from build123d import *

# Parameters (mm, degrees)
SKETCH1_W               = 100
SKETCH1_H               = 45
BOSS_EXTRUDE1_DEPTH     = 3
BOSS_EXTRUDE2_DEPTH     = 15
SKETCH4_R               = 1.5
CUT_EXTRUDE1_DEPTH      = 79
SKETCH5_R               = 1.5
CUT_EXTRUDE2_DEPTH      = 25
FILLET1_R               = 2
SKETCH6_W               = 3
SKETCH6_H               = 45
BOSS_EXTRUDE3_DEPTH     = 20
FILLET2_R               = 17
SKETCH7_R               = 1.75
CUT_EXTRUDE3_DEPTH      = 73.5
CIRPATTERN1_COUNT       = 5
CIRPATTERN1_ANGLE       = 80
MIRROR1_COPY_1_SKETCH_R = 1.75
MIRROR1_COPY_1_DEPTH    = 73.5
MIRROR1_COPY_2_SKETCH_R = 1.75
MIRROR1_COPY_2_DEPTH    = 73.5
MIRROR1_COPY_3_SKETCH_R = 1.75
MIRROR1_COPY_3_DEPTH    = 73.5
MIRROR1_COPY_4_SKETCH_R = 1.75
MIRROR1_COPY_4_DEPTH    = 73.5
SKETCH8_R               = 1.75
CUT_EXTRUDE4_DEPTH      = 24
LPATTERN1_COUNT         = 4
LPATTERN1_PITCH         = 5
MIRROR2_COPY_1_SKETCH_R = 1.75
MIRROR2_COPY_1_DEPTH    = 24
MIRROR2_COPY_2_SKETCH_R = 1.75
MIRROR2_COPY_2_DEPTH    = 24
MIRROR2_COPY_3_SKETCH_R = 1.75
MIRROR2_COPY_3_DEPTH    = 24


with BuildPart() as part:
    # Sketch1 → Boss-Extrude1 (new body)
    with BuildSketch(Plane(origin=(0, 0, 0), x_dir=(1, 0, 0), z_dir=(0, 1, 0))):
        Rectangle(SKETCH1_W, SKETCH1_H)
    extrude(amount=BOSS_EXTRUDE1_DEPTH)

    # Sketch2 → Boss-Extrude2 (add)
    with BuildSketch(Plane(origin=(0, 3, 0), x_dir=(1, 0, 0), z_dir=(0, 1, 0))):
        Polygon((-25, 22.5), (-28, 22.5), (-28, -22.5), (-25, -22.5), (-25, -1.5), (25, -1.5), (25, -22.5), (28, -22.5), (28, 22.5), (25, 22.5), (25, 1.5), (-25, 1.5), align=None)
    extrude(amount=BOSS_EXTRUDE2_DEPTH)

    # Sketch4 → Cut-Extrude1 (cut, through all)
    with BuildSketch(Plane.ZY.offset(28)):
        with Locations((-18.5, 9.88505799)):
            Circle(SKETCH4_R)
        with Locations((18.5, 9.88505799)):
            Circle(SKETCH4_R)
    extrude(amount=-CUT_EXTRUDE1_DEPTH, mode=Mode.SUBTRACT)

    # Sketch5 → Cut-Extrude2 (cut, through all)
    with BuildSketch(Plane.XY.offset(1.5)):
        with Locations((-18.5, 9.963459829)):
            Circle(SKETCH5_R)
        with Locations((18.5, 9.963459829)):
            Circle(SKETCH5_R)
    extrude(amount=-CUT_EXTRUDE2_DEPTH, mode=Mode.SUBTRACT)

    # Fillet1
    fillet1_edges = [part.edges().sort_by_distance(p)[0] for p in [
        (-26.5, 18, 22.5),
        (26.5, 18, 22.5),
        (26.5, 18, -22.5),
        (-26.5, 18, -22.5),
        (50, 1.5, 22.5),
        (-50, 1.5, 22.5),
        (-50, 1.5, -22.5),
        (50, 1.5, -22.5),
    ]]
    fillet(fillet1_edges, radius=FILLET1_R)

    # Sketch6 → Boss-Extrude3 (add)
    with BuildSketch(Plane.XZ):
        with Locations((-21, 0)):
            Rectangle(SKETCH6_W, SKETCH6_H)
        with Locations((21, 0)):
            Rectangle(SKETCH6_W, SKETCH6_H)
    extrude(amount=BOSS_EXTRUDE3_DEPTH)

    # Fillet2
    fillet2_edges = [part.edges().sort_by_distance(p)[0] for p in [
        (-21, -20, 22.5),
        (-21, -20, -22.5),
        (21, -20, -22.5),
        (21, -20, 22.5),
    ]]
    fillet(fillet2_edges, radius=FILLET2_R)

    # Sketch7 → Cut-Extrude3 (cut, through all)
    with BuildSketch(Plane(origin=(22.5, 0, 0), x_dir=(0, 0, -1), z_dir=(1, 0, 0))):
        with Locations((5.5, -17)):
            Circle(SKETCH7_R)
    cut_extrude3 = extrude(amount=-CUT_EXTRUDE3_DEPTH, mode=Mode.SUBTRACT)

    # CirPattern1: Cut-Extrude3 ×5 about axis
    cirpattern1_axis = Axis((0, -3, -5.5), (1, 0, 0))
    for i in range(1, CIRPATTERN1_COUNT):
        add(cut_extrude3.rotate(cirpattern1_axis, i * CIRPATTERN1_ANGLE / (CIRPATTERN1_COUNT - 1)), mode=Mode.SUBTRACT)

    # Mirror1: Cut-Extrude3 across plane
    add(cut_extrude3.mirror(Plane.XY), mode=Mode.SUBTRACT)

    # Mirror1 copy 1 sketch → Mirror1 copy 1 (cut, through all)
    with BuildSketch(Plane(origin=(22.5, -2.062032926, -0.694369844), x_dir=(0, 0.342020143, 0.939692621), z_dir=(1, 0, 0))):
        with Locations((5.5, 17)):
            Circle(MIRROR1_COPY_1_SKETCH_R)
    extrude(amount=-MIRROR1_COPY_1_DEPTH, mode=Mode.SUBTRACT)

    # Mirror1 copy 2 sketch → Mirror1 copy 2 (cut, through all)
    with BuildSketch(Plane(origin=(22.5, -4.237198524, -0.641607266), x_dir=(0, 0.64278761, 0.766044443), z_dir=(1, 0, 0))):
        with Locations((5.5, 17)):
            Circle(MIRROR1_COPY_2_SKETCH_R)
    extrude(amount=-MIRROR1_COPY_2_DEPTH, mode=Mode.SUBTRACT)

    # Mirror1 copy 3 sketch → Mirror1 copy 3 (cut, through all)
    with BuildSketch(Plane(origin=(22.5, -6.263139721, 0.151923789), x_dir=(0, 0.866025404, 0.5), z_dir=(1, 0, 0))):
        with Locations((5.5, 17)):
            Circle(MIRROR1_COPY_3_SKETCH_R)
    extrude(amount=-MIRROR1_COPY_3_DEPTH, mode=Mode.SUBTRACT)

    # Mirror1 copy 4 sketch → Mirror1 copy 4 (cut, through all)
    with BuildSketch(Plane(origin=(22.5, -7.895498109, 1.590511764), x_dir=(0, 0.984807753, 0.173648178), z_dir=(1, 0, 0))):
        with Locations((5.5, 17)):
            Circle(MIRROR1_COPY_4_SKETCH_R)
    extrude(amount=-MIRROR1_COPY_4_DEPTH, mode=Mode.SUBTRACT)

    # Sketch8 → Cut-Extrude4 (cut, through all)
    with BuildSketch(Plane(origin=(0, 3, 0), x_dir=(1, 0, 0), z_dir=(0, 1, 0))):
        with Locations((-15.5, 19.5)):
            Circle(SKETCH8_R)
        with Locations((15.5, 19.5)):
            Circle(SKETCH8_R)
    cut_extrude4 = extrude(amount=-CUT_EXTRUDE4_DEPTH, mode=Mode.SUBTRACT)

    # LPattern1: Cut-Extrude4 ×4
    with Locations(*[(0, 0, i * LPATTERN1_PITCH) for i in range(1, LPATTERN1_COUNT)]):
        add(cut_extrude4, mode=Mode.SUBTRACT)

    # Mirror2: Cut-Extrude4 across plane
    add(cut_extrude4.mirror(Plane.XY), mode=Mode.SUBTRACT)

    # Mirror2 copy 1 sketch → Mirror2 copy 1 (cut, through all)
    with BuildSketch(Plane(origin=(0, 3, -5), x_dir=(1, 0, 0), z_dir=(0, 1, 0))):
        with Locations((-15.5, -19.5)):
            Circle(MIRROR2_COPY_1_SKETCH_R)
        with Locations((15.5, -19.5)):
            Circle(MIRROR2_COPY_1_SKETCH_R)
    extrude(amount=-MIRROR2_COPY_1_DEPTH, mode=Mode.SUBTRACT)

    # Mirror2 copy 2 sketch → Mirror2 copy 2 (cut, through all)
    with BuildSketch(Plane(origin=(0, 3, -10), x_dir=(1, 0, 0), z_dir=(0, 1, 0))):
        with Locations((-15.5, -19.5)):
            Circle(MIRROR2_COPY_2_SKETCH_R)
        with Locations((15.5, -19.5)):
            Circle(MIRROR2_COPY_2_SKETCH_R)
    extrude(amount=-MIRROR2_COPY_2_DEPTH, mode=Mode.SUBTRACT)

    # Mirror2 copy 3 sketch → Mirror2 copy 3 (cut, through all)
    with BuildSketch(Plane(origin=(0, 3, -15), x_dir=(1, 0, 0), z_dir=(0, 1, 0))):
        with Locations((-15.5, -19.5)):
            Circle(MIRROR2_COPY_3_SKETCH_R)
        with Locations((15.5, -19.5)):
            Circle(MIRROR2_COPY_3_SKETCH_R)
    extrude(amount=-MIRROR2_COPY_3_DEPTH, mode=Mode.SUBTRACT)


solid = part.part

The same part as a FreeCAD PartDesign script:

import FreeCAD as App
import Part
import Sketcher
Q = App.Units.Quantity


def edges_at(feature, points):
    """Names of the edges that pass closest to the given points."""
    edges = feature.Shape.Edges
    near = lambda p: min(range(len(edges)), key=lambda i: edges[i].distToShape(Part.Vertex(*p))[0])
    return sorted({f"Edge{near(p) + 1}" for p in points})

doc = App.newDocument("Part")
body = doc.addObject("PartDesign::Body", "Body")

# Sketch on XZ plane
sketch1 = body.newObject("Sketcher::SketchObject", "Sketch")
sketch1.AttachmentSupport = (doc.getObject("XZ_Plane"), [""])
sketch1.MapMode = "FlatFace"
sketch1.addGeometry(Part.LineSegment(App.Vector(-50, -22, 0), App.Vector(-50, 22, 0)), False)
sketch1.addGeometry(Part.LineSegment(App.Vector(-50, 22, 0), App.Vector(50, 22, 0)), False)
sketch1.addGeometry(Part.LineSegment(App.Vector(50, 22, 0), App.Vector(50, -22, 0)), False)
sketch1.addGeometry(Part.LineSegment(App.Vector(50, -22, 0), App.Vector(-50, -22, 0)), False)
sketch1.addConstraint(Sketcher.Constraint("Coincident", 0, 2, 1, 1))
sketch1.addConstraint(Sketcher.Constraint("Coincident", 1, 2, 2, 1))
sketch1.addConstraint(Sketcher.Constraint("Coincident", 2, 2, 3, 1))
sketch1.addConstraint(Sketcher.Constraint("Coincident", 3, 2, 0, 1))
sketch1.addConstraint(Sketcher.Constraint("Vertical", 0))
sketch1.addConstraint(Sketcher.Constraint("Horizontal", 1))
sketch1.addConstraint(Sketcher.Constraint("Vertical", 2))
sketch1.addConstraint(Sketcher.Constraint("Horizontal", 3))
sketch1.addConstraint(Sketcher.Constraint("Symmetric", 0, 2, 2, 2, -1, 1))
sketch1.addConstraint(Sketcher.Constraint("DistanceX", 1, 1, 1, 2, Q("100 mm")))
sketch1.addConstraint(Sketcher.Constraint("DistanceY", 0, 1, 0, 2, Q("45 mm")))
pad1 = body.newObject("PartDesign::Pad", "Pad")
pad1.Profile = sketch1
pad1.Length = 3
pad1.Reversed = True

# Sketch on XZ plane
sketch2 = body.newObject("Sketcher::SketchObject", "Sketch001")
sketch2.AttachmentSupport = (doc.getObject("XZ_Plane"), [""])
sketch2.MapMode = "FlatFace"
sketch2.AttachmentOffset = App.Placement(App.Vector(0, 0, -3), App.Rotation())
sketch2.addGeometry(Part.LineSegment(App.Vector(-25, -22.5, 0), App.Vector(-28, -22.5, 0)), False)
sketch2.addGeometry(Part.LineSegment(App.Vector(-28, -22.5, 0), App.Vector(-28, 22.5, 0)), False)
sketch2.addGeometry(Part.LineSegment(App.Vector(-28, 22.5, 0), App.Vector(-25, 22.5, 0)), False)
sketch2.addGeometry(Part.LineSegment(App.Vector(-25, 22.5, 0), App.Vector(-25, 1.5, 0)), False)
sketch2.addGeometry(Part.LineSegment(App.Vector(-25, 1.5, 0), App.Vector(25, 1.5, 0)), False)
sketch2.addGeometry(Part.LineSegment(App.Vector(25, 1.5, 0), App.Vector(25, 22.5, 0)), False)
sketch2.addGeometry(Part.LineSegment(App.Vector(25, 22.5, 0), App.Vector(28, 22.5, 0)), False)
sketch2.addGeometry(Part.LineSegment(App.Vector(28, 22.5, 0), App.Vector(28, -22.5, 0)), False)
sketch2.addGeometry(Part.LineSegment(App.Vector(28, -22.5, 0), App.Vector(25, -22.5, 0)), False)
sketch2.addGeometry(Part.LineSegment(App.Vector(25, -22.5, 0), App.Vector(25, -1.5, 0)), False)
sketch2.addGeometry(Part.LineSegment(App.Vector(25, -1.5, 0), App.Vector(-25, -1.5, 0)), False)
sketch2.addGeometry(Part.LineSegment(App.Vector(-25, -1.5, 0), App.Vector(-25, -22.5, 0)), False)
sketch2.addConstraint(Sketcher.Constraint("Coincident", 0, 2, 1, 1))
sketch2.addConstraint(Sketcher.Constraint("Coincident", 1, 2, 2, 1))
sketch2.addConstraint(Sketcher.Constraint("Coincident", 2, 2, 3, 1))
sketch2.addConstraint(Sketcher.Constraint("Coincident", 3, 2, 4, 1))
sketch2.addConstraint(Sketcher.Constraint("Coincident", 4, 2, 5, 1))
sketch2.addConstraint(Sketcher.Constraint("Coincident", 5, 2, 6, 1))
sketch2.addConstraint(Sketcher.Constraint("Coincident", 6, 2, 7, 1))
sketch2.addConstraint(Sketcher.Constraint("Coincident", 7, 2, 8, 1))
sketch2.addConstraint(Sketcher.Constraint("Coincident", 8, 2, 9, 1))
sketch2.addConstraint(Sketcher.Constraint("Coincident", 9, 2, 10, 1))
sketch2.addConstraint(Sketcher.Constraint("Coincident", 10, 2, 11, 1))
sketch2.addConstraint(Sketcher.Constraint("Coincident", 11, 2, 0, 1))
sketch2.addConstraint(Sketcher.Constraint("Horizontal", 0))
sketch2.addConstraint(Sketcher.Constraint("Vertical", 1))
sketch2.addConstraint(Sketcher.Constraint("Horizontal", 2))
sketch2.addConstraint(Sketcher.Constraint("Vertical", 3))
sketch2.addConstraint(Sketcher.Constraint("Horizontal", 4))
sketch2.addConstraint(Sketcher.Constraint("Vertical", 5))
sketch2.addConstraint(Sketcher.Constraint("Horizontal", 6))
sketch2.addConstraint(Sketcher.Constraint("Vertical", 7))
sketch2.addConstraint(Sketcher.Constraint("Horizontal", 8))
sketch2.addConstraint(Sketcher.Constraint("Vertical", 9))
sketch2.addConstraint(Sketcher.Constraint("Horizontal", 10))
sketch2.addConstraint(Sketcher.Constraint("Vertical", 11))
sketch2.addConstraint(Sketcher.Constraint("Symmetric", 0, 2, 6, 2, -1, 1))
sketch2.addConstraint(Sketcher.Constraint("Symmetric", 2, 2, 8, 2, -1, 1))
sketch2.addConstraint(Sketcher.Constraint("Symmetric", 4, 2, 10, 2, -1, 1))
sketch2.addConstraint(Sketcher.Constraint("Symmetric", 2, 2, 5, 2, -2))
sketch2.addConstraint(Sketcher.Constraint("DistanceX", 0, 2, 0, 1, Q("3 mm")))
sketch2.addConstraint(Sketcher.Constraint("DistanceX", 4, 1, 4, 2, Q("50 mm")))
sketch2.addConstraint(Sketcher.Constraint("DistanceY", 1, 1, 1, 2, Q("45 mm")))
sketch2.addConstraint(Sketcher.Constraint("DistanceY", 3, 2, 3, 1, Q("21 mm")))
pad2 = body.newObject("PartDesign::Pad", "Pad001")
pad2.Profile = sketch2
pad2.Length = 15
pad2.Reversed = True

# Sketch on YZ plane
sketch3 = body.newObject("Sketcher::SketchObject", "Sketch002")
sketch3.AttachmentSupport = (doc.getObject("YZ_Plane"), [""])
sketch3.MapMode = "FlatFace"
sketch3.AttachmentOffset = App.Placement(App.Vector(0, 0, -28), App.Rotation())
sketch3.addGeometry(Part.Circle(App.Vector(9.9, -18.5, 0), App.Vector(0, 0, 1), 1.5), False)
sketch3.addGeometry(Part.Circle(App.Vector(9.9, 18.5, 0), App.Vector(0, 0, 1), 1.5), False)
sketch3.addConstraint(Sketcher.Constraint("Equal", 0, 1))
sketch3.addConstraint(Sketcher.Constraint("Symmetric", 0, 3, 1, 3, -1))
sketch3.addConstraint(Sketcher.Constraint("Diameter", 0, Q("3 mm")))
sketch3.addConstraint(Sketcher.Constraint("DistanceY", 0, 3, 1, 3, Q("37 mm")))
sketch3.addConstraint(Sketcher.Constraint("DistanceX", -1, 1, 0, 3, Q("9.885058 mm")))
pocket1 = body.newObject("PartDesign::Pocket", "Pocket")
pocket1.Profile = sketch3
pocket1.Type = "ThroughAll"
pocket1.Reversed = True

# Sketch on XY plane
sketch4 = body.newObject("Sketcher::SketchObject", "Sketch003")
sketch4.AttachmentSupport = (doc.getObject("XY_Plane"), [""])
sketch4.MapMode = "FlatFace"
sketch4.AttachmentOffset = App.Placement(App.Vector(0, 0, 1.5), App.Rotation())
sketch4.addGeometry(Part.Circle(App.Vector(-18.5, 10, 0), App.Vector(0, 0, 1), 1.5), False)
sketch4.addGeometry(Part.Circle(App.Vector(18.5, 10, 0), App.Vector(0, 0, 1), 1.5), False)
sketch4.addConstraint(Sketcher.Constraint("Equal", 0, 1))
sketch4.addConstraint(Sketcher.Constraint("Symmetric", 0, 3, 1, 3, -2))
sketch4.addConstraint(Sketcher.Constraint("Diameter", 0, Q("3 mm")))
sketch4.addConstraint(Sketcher.Constraint("DistanceX", 0, 3, 1, 3, Q("37 mm")))
sketch4.addConstraint(Sketcher.Constraint("DistanceY", -1, 1, 0, 3, Q("9.96346 mm")))
pocket2 = body.newObject("PartDesign::Pocket", "Pocket001")
pocket2.Profile = sketch4
pocket2.Type = "ThroughAll"
doc.recompute()

fillet = body.newObject("PartDesign::Fillet", "Fillet")
fillet.Base = (pocket2, edges_at(pocket2, [
    (-26.5, 18, 22.5),
    (26.5, 18, 22.5),
    (26.5, 18, -22.5),
    (-26.5, 18, -22.5),
    (50, 1.5, 22.5),
    (-50, 1.5, 22.5),
    (-50, 1.5, -22.5),
    (50, 1.5, -22.5),
]))
fillet.Radius = 2

# Sketch on XZ plane
sketch5 = body.newObject("Sketcher::SketchObject", "Sketch004")
sketch5.AttachmentSupport = (doc.getObject("XZ_Plane"), [""])
sketch5.MapMode = "FlatFace"
sketch5.addGeometry(Part.LineSegment(App.Vector(-22.5, 22.5, 0), App.Vector(-22.5, -22.5, 0)), False)
sketch5.addGeometry(Part.LineSegment(App.Vector(-22.5, -22.5, 0), App.Vector(-19.5, -22.5, 0)), False)
sketch5.addGeometry(Part.LineSegment(App.Vector(-19.5, -22.5, 0), App.Vector(-19.5, 22.5, 0)), False)
sketch5.addGeometry(Part.LineSegment(App.Vector(-19.5, 22.5, 0), App.Vector(-22.5, 22.5, 0)), False)
sketch5.addGeometry(Part.LineSegment(App.Vector(19.5, 22.5, 0), App.Vector(19.5, -22.5, 0)), False)
sketch5.addGeometry(Part.LineSegment(App.Vector(19.5, -22.5, 0), App.Vector(22.5, -22.5, 0)), False)
sketch5.addGeometry(Part.LineSegment(App.Vector(22.5, -22.5, 0), App.Vector(22.5, 22.5, 0)), False)
sketch5.addGeometry(Part.LineSegment(App.Vector(22.5, 22.5, 0), App.Vector(19.5, 22.5, 0)), False)
sketch5.addConstraint(Sketcher.Constraint("Coincident", 0, 2, 1, 1))
sketch5.addConstraint(Sketcher.Constraint("Coincident", 1, 2, 2, 1))
sketch5.addConstraint(Sketcher.Constraint("Coincident", 2, 2, 3, 1))
sketch5.addConstraint(Sketcher.Constraint("Coincident", 3, 2, 0, 1))
sketch5.addConstraint(Sketcher.Constraint("Coincident", 4, 2, 5, 1))
sketch5.addConstraint(Sketcher.Constraint("Coincident", 5, 2, 6, 1))
sketch5.addConstraint(Sketcher.Constraint("Coincident", 6, 2, 7, 1))
sketch5.addConstraint(Sketcher.Constraint("Coincident", 7, 2, 4, 1))
sketch5.addConstraint(Sketcher.Constraint("Vertical", 0))
sketch5.addConstraint(Sketcher.Constraint("Horizontal", 1))
sketch5.addConstraint(Sketcher.Constraint("Vertical", 2))
sketch5.addConstraint(Sketcher.Constraint("Horizontal", 3))
sketch5.addConstraint(Sketcher.Constraint("Vertical", 4))
sketch5.addConstraint(Sketcher.Constraint("Horizontal", 5))
sketch5.addConstraint(Sketcher.Constraint("Vertical", 6))
sketch5.addConstraint(Sketcher.Constraint("Horizontal", 7))
sketch5.addConstraint(Sketcher.Constraint("Symmetric", 2, 2, 4, 2, -1, 1))
sketch5.addConstraint(Sketcher.Constraint("Symmetric", 0, 2, 6, 2, -1, 1))
sketch5.addConstraint(Sketcher.Constraint("Horizontal", 1, 2, 4, 2))
sketch5.addConstraint(Sketcher.Constraint("DistanceX", 1, 1, 1, 2, Q("3 mm")))
sketch5.addConstraint(Sketcher.Constraint("DistanceY", 0, 2, 0, 1, Q("45 mm")))
sketch5.addConstraint(Sketcher.Constraint("DistanceX", 1, 2, 4, 2, Q("39 mm")))
pad3 = body.newObject("PartDesign::Pad", "Pad002")
pad3.Profile = sketch5
pad3.Length = 20
doc.recompute()

fillet2 = body.newObject("PartDesign::Fillet", "Fillet001")
fillet2.Base = (pad3, edges_at(pad3, [
    (-21, -20, 22.5),
    (-21, -20, -22.5),
    (21, -20, -22.5),
    (21, -20, 22.5),
]))
fillet2.Radius = 17

# Sketch on YZ plane
sketch6 = body.newObject("Sketcher::SketchObject", "Sketch005")
sketch6.AttachmentSupport = (doc.getObject("YZ_Plane"), [""])
sketch6.MapMode = "FlatFace"
sketch6.AttachmentOffset = App.Placement(App.Vector(0, 0, 22.5), App.Rotation())
sketch6.addGeometry(Part.Circle(App.Vector(-17, -5.5, 0), App.Vector(0, 0, 1), 1.8), False)
sketch6.addConstraint(Sketcher.Constraint("Diameter", 0, Q("3.5 mm")))
sketch6.addConstraint(Sketcher.Constraint("DistanceX", 0, 3, -1, 1, Q("17 mm")))
sketch6.addConstraint(Sketcher.Constraint("DistanceY", 0, 3, -1, 1, Q("5.5 mm")))
pocket3 = body.newObject("PartDesign::Pocket", "Pocket002")
pocket3.Profile = sketch6
pocket3.Type = "ThroughAll"
doc.recompute()

datumline = body.newObject("PartDesign::Line", "DatumLine")
datumline.Placement = App.Placement(App.Vector(0, -3, -5.5), App.Rotation(App.Vector(0, 0, 1), App.Vector(1, 0, 0)))
polarpattern = body.newObject("PartDesign::PolarPattern", "PolarPattern")
polarpattern.Originals = [pocket3]
polarpattern.Axis = (datumline, [""])
polarpattern.Angle = 80
polarpattern.Occurrences = 5
body.Tip = polarpattern
doc.recompute()

mirrored = body.newObject("PartDesign::Mirrored", "Mirrored")
mirrored.Originals = [pocket3]
mirrored.MirrorPlane = (doc.getObject("XY_Plane"), [""])
body.Tip = mirrored

# Sketch on YZ plane
sketch7 = body.newObject("Sketcher::SketchObject", "Sketch006")
sketch7.AttachmentSupport = (doc.getObject("YZ_Plane"), [""])
sketch7.MapMode = "FlatFace"
sketch7.AttachmentOffset = App.Placement(App.Vector(0, 0, 22.5), App.Rotation())
sketch7.addGeometry(Part.Circle(App.Vector(-16.2, 10.3, 0), App.Vector(0, 0, 1), 1.8), False)
sketch7.addConstraint(Sketcher.Constraint("Diameter", 0, Q("3.5 mm")))
sketch7.addConstraint(Sketcher.Constraint("DistanceX", 0, 3, -1, 1, Q("16.155697 mm")))
sketch7.addConstraint(Sketcher.Constraint("DistanceY", -1, 1, 0, 3, Q("10.288282 mm")))
pocket4 = body.newObject("PartDesign::Pocket", "Pocket003")
pocket4.Profile = sketch7
pocket4.Type = "ThroughAll"

# Sketch on YZ plane
sketch8 = body.newObject("Sketcher::SketchObject", "Sketch007")
sketch8.AttachmentSupport = (doc.getObject("YZ_Plane"), [""])
sketch8.MapMode = "FlatFace"
sketch8.AttachmentOffset = App.Placement(App.Vector(0, 0, 22.5), App.Rotation())
sketch8.addGeometry(Part.Circle(App.Vector(-13.7, 14.5, 0), App.Vector(0, 0, 1), 1.8), False)
sketch8.addConstraint(Sketcher.Constraint("Diameter", 0, Q("3.5 mm")))
sketch8.addConstraint(Sketcher.Constraint("DistanceX", 0, 3, -1, 1, Q("13.724622 mm")))
sketch8.addConstraint(Sketcher.Constraint("DistanceY", -1, 1, 0, 3, Q("14.499027 mm")))
pocket5 = body.newObject("PartDesign::Pocket", "Pocket004")
pocket5.Profile = sketch8
pocket5.Type = "ThroughAll"

# Sketch on YZ plane
sketch9 = body.newObject("Sketcher::SketchObject", "Sketch008")
sketch9.AttachmentSupport = (doc.getObject("YZ_Plane"), [""])
sketch9.MapMode = "FlatFace"
sketch9.AttachmentOffset = App.Placement(App.Vector(0, 0, 22.5), App.Rotation())
sketch9.addGeometry(Part.Circle(App.Vector(-10, 17.6, 0), App.Vector(0, 0, 1), 1.8), False)
sketch9.addConstraint(Sketcher.Constraint("Diameter", 0, Q("3.5 mm")))
sketch9.addConstraint(Sketcher.Constraint("DistanceX", 0, 3, -1, 1, Q("10 mm")))
sketch9.addConstraint(Sketcher.Constraint("DistanceY", -1, 1, 0, 3, Q("17.624356 mm")))
pocket6 = body.newObject("PartDesign::Pocket", "Pocket005")
pocket6.Profile = sketch9
pocket6.Type = "ThroughAll"

# Sketch on YZ plane
sketch10 = body.newObject("Sketcher::SketchObject", "Sketch009")
sketch10.AttachmentSupport = (doc.getObject("YZ_Plane"), [""])
sketch10.MapMode = "FlatFace"
sketch10.AttachmentOffset = App.Placement(App.Vector(0, 0, 22.5), App.Rotation())
sketch10.addGeometry(Part.Circle(App.Vector(-5.4, 19.3, 0), App.Vector(0, 0, 1), 1.8), False)
sketch10.addConstraint(Sketcher.Constraint("Diameter", 0, Q("3.5 mm")))
sketch10.addConstraint(Sketcher.Constraint("DistanceY", -1, 1, 0, 3, Q("19.287309 mm")))
sketch10.addConstraint(Sketcher.Constraint("DistanceX", 0, 3, -1, 1, Q("5.431074 mm")))
pocket7 = body.newObject("PartDesign::Pocket", "Pocket006")
pocket7.Profile = sketch10
pocket7.Type = "ThroughAll"

# Sketch on XZ plane
sketch11 = body.newObject("Sketcher::SketchObject", "Sketch010")
sketch11.AttachmentSupport = (doc.getObject("XZ_Plane"), [""])
sketch11.MapMode = "FlatFace"
sketch11.AttachmentOffset = App.Placement(App.Vector(0, 0, -3), App.Rotation())
sketch11.addGeometry(Part.Circle(App.Vector(-15.5, -19.5, 0), App.Vector(0, 0, 1), 1.8), False)
sketch11.addGeometry(Part.Circle(App.Vector(15.5, -19.5, 0), App.Vector(0, 0, 1), 1.8), False)
sketch11.addConstraint(Sketcher.Constraint("Equal", 0, 1))
sketch11.addConstraint(Sketcher.Constraint("Symmetric", 0, 3, 1, 3, -2))
sketch11.addConstraint(Sketcher.Constraint("Diameter", 0, Q("3.5 mm")))
sketch11.addConstraint(Sketcher.Constraint("DistanceX", 0, 3, 1, 3, Q("31 mm")))
sketch11.addConstraint(Sketcher.Constraint("DistanceY", 0, 3, -1, 1, Q("19.5 mm")))
pocket8 = body.newObject("PartDesign::Pocket", "Pocket007")
pocket8.Profile = sketch11
pocket8.Type = "ThroughAll"
pocket8.Reversed = True
doc.recompute()

linearpattern = body.newObject("PartDesign::LinearPattern", "LinearPattern")
linearpattern.Originals = [pocket8]
linearpattern.Direction = (doc.getObject("Z_Axis"), [""])
linearpattern.Mode = "offset"
linearpattern.Offset = 5
linearpattern.Occurrences = 4
body.Tip = linearpattern
doc.recompute()

mirrored2 = body.newObject("PartDesign::Mirrored", "Mirrored001")
mirrored2.Originals = [pocket8]
mirrored2.MirrorPlane = (doc.getObject("XY_Plane"), [""])
body.Tip = mirrored2

# Sketch on XZ plane
sketch12 = body.newObject("Sketcher::SketchObject", "Sketch011")
sketch12.AttachmentSupport = (doc.getObject("XZ_Plane"), [""])
sketch12.MapMode = "FlatFace"
sketch12.AttachmentOffset = App.Placement(App.Vector(0, 0, -3), App.Rotation())
sketch12.addGeometry(Part.Circle(App.Vector(-15.5, 14.5, 0), App.Vector(0, 0, 1), 1.8), False)
sketch12.addGeometry(Part.Circle(App.Vector(15.5, 14.5, 0), App.Vector(0, 0, 1), 1.8), False)
sketch12.addConstraint(Sketcher.Constraint("Equal", 0, 1))
sketch12.addConstraint(Sketcher.Constraint("Symmetric", 0, 3, 1, 3, -2))
sketch12.addConstraint(Sketcher.Constraint("Diameter", 0, Q("3.5 mm")))
sketch12.addConstraint(Sketcher.Constraint("DistanceX", 0, 3, 1, 3, Q("31 mm")))
sketch12.addConstraint(Sketcher.Constraint("DistanceY", -1, 1, 0, 3, Q("14.5 mm")))
pocket9 = body.newObject("PartDesign::Pocket", "Pocket008")
pocket9.Profile = sketch12
pocket9.Type = "ThroughAll"
pocket9.Reversed = True

# Sketch on XZ plane
sketch13 = body.newObject("Sketcher::SketchObject", "Sketch012")
sketch13.AttachmentSupport = (doc.getObject("XZ_Plane"), [""])
sketch13.MapMode = "FlatFace"
sketch13.AttachmentOffset = App.Placement(App.Vector(0, 0, -3), App.Rotation())
sketch13.addGeometry(Part.Circle(App.Vector(-15.5, 9.5, 0), App.Vector(0, 0, 1), 1.8), False)
sketch13.addGeometry(Part.Circle(App.Vector(15.5, 9.5, 0), App.Vector(0, 0, 1), 1.8), False)
sketch13.addConstraint(Sketcher.Constraint("Equal", 0, 1))
sketch13.addConstraint(Sketcher.Constraint("Symmetric", 0, 3, 1, 3, -2))
sketch13.addConstraint(Sketcher.Constraint("Diameter", 0, Q("3.5 mm")))
sketch13.addConstraint(Sketcher.Constraint("DistanceX", 0, 3, 1, 3, Q("31 mm")))
sketch13.addConstraint(Sketcher.Constraint("DistanceY", -1, 1, 0, 3, Q("9.5 mm")))
pocket10 = body.newObject("PartDesign::Pocket", "Pocket009")
pocket10.Profile = sketch13
pocket10.Type = "ThroughAll"
pocket10.Reversed = True

# Sketch on XZ plane
sketch14 = body.newObject("Sketcher::SketchObject", "Sketch013")
sketch14.AttachmentSupport = (doc.getObject("XZ_Plane"), [""])
sketch14.MapMode = "FlatFace"
sketch14.AttachmentOffset = App.Placement(App.Vector(0, 0, -3), App.Rotation())
sketch14.addGeometry(Part.Circle(App.Vector(-15.5, 4.5, 0), App.Vector(0, 0, 1), 1.8), False)
sketch14.addGeometry(Part.Circle(App.Vector(15.5, 4.5, 0), App.Vector(0, 0, 1), 1.8), False)
sketch14.addConstraint(Sketcher.Constraint("Equal", 0, 1))
sketch14.addConstraint(Sketcher.Constraint("Symmetric", 0, 3, 1, 3, -2))
sketch14.addConstraint(Sketcher.Constraint("Diameter", 0, Q("3.5 mm")))
sketch14.addConstraint(Sketcher.Constraint("DistanceX", 0, 3, 1, 3, Q("31 mm")))
sketch14.addConstraint(Sketcher.Constraint("DistanceY", -1, 1, 0, 3, Q("4.5 mm")))
pocket11 = body.newObject("PartDesign::Pocket", "Pocket010")
pocket11.Profile = sketch14
pocket11.Type = "ThroughAll"
pocket11.Reversed = True

doc.recompute()
